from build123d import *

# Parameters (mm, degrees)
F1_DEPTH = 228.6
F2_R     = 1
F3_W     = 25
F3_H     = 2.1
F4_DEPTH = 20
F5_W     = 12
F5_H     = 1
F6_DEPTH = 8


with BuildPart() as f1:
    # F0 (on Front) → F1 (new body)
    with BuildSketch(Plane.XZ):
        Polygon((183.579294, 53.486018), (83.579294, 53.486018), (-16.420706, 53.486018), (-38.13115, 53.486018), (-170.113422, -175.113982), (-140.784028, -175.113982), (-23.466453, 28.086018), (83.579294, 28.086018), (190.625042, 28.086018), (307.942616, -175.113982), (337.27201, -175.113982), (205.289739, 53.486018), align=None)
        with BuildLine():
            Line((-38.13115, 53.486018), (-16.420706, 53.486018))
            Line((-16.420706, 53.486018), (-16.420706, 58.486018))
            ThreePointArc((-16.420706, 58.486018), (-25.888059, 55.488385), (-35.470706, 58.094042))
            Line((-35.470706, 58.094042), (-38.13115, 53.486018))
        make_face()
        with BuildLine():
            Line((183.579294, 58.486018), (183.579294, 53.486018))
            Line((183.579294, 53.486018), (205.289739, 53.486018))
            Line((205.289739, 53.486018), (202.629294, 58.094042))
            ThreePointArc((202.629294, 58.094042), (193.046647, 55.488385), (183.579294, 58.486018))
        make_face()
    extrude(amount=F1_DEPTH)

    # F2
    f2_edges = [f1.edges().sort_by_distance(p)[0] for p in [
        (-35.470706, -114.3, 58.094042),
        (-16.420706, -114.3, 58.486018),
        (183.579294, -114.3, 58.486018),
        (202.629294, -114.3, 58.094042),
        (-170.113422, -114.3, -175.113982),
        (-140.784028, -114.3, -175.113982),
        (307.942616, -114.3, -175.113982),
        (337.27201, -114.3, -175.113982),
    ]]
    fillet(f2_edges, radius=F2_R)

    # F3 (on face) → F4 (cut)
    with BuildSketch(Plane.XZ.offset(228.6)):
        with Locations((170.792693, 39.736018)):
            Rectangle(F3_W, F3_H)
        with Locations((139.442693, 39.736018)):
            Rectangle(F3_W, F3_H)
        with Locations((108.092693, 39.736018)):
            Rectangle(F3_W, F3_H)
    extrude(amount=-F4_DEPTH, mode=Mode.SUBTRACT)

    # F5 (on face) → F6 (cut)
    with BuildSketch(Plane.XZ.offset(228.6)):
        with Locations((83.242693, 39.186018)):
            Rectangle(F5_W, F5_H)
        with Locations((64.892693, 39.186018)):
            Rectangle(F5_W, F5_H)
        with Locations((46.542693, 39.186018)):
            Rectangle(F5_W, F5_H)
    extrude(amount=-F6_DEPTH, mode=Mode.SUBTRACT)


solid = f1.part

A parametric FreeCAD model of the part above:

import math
import FreeCAD as App
import Part
import Sketcher
from FreeCAD import Vector
Q = App.Units.Quantity


def edges_at(feature, points):
    """Names of the edges that pass closest to the given points."""
    edges = feature.Shape.Edges
    near = lambda p: min(range(len(edges)), key=lambda i: edges[i].distToShape(Part.Vertex(*p))[0])
    return sorted({f"Edge{near(p) + 1}" for p in points})

doc = App.newDocument("Part")
params = doc.addObject("Spreadsheet::Sheet", "Params")
for row, (alias, value) in enumerate([
    ("sketch1_width", "200 mm"),
    ("sketch1_height", "5 mm"),
    ("pad1_length", "228.6 mm"),
    ("fillet_radius", "1 mm"),
    ("sketch2_width", "25 mm"),
    ("sketch2_height", "2.1 mm"),
    ("pocket1_length", "20 mm"),
    ("sketch3_width", "12 mm"),
    ("sketch3_height", "1 mm"),
    ("pocket2_length", "8 mm"),
], start=1):
    params.set(f"A{row}", alias)
    params.set(f"B{row}", "=" + value)
    params.setAlias(f"B{row}", alias)

body = doc.addObject("PartDesign::Body", "Body")

sketch1 = doc.addObject("Sketcher::SketchObject", "Sketch")
body.addObject(sketch1)
sketch1.AttachmentSupport = (doc.XZ_Plane, [""])
sketch1.MapMode = "FlatFace"
sketch1.addGeometry(Part.LineSegment(Vector(-38.13115, 53.486018, 0), Vector(-170.113422, -175.113982, 0)), False)
sketch1.addGeometry(Part.LineSegment(Vector(-170.113422, -175.113982, 0), Vector(-140.784028, -175.113982, 0)), False)
sketch1.addGeometry(Part.LineSegment(Vector(-140.784028, -175.113982, 0), Vector(-23.466453, 28.086018, 0)), False)
sketch1.addGeometry(Part.LineSegment(Vector(-23.466453, 28.086018, 0), Vector(190.625042, 28.086018, 0)), False)
sketch1.addGeometry(Part.LineSegment(Vector(190.625042, 28.086018, 0), Vector(307.942616, -175.113982, 0)), False)
sketch1.addGeometry(Part.LineSegment(Vector(307.942616, -175.113982, 0), Vector(337.27201, -175.113982, 0)), False)
sketch1.addGeometry(Part.LineSegment(Vector(337.27201, -175.113982, 0), Vector(205.289739, 53.486018, 0)), False)
sketch1.addGeometry(Part.LineSegment(Vector(205.289739, 53.486018, 0), Vector(202.629294, 58.094042, 0)), False)
sketch1.addGeometry(Part.ArcOfCircle(Part.Circle(Vector(193.408629, 73.080699, 0), Vector(0, 0, 1), 17.596038), math.radians(-123.959773), math.radians(-58.397749)), False)
sketch1.addGeometry(Part.LineSegment(Vector(183.579294, 58.486018, 0), Vector(183.579294, 53.486018, 0)), False)
sketch1.addGeometry(Part.LineSegment(Vector(183.579294, 53.486018, 0), Vector(-16.420706, 53.486018, 0)), False)
sketch1.addGeometry(Part.LineSegment(Vector(-16.420706, 53.486018, 0), Vector(-16.420706, 58.486018, 0)), False)
sketch1.addGeometry(Part.ArcOfCircle(Part.Circle(Vector(-26.250041, 73.080699, 0), Vector(0, 0, 1), 17.596038), math.radians(-121.602251), math.radians(-56.040227)), False)
sketch1.addGeometry(Part.LineSegment(Vector(-35.470706, 58.094042, 0), Vector(-38.13115, 53.486018, 0)), False)
sketch1.addConstraint(Sketcher.Constraint("Coincident", 0, 2, 1, 1))
sketch1.addConstraint(Sketcher.Constraint("Coincident", 1, 2, 2, 1))
sketch1.addConstraint(Sketcher.Constraint("Coincident", 2, 2, 3, 1))
sketch1.addConstraint(Sketcher.Constraint("Coincident", 3, 2, 4, 1))
sketch1.addConstraint(Sketcher.Constraint("Coincident", 4, 2, 5, 1))
sketch1.addConstraint(Sketcher.Constraint("Coincident", 5, 2, 6, 1))
sketch1.addConstraint(Sketcher.Constraint("Coincident", 6, 2, 7, 1))
sketch1.addConstraint(Sketcher.Constraint("Coincident", 7, 2, 8, 2))
sketch1.addConstraint(Sketcher.Constraint("Coincident", 8, 1, 9, 1))
sketch1.addConstraint(Sketcher.Constraint("Coincident", 9, 2, 10, 1))
sketch1.addConstraint(Sketcher.Constraint("Coincident", 10, 2, 11, 1))
sketch1.addConstraint(Sketcher.Constraint("Coincident", 11, 2, 12, 2))
sketch1.addConstraint(Sketcher.Constraint("Coincident", 12, 1, 13, 1))
sketch1.addConstraint(Sketcher.Constraint("Coincident", 13, 2, 0, 1))
sketch1.addConstraint(Sketcher.Constraint("Horizontal", 1))
sketch1.addConstraint(Sketcher.Constraint("Horizontal", 3))
sketch1.addConstraint(Sketcher.Constraint("Horizontal", 5))
sketch1.addConstraint(Sketcher.Constraint("Vertical", 9))
sketch1.addConstraint(Sketcher.Constraint("Horizontal", 10))
sketch1.addConstraint(Sketcher.Constraint("Vertical", 11))
sketch1.addConstraint(Sketcher.Constraint("Equal", 8, 12))
sketch1.addConstraint(Sketcher.Constraint("Parallel", 0, 2))
sketch1.addConstraint(Sketcher.Constraint("Parallel", 4, 6))
sketch1.addConstraint(Sketcher.Constraint("Parallel", 6, 7))
sketch1.addConstraint(Sketcher.Constraint("Parallel", 2, 13))
sketch1.addConstraint(Sketcher.Constraint("Horizontal", 8, 3, 12, 3))
sketch1.addConstraint(Sketcher.Constraint("Horizontal", 1, 2, 4, 2))
sketch1.addConstraint(Sketcher.Constraint("Horizontal", 6, 2, 9, 2))
sketch1.addConstraint(Sketcher.Constraint("Horizontal", 8, 1, 11, 2))
sketch1.addConstraint(Sketcher.Constraint("Horizontal", 7, 2, 12, 1))
sketch1.addConstraint(Sketcher.Constraint("Horizontal", 10, 2, 13, 2))
sketch1.addConstraint(Sketcher.Constraint("Equal", 1, 5))
sketch1.addConstraint(Sketcher.Constraint("Equal", 2, 4))
sketch1.addConstraint(Sketcher.Constraint("DistanceX", 10, 2, 10, 1, 200.0))
sketch1.addConstraint(Sketcher.Constraint("DistanceY", 9, 2, 9, 1, 5.0))
sketch1.addConstraint(Sketcher.Constraint("Angle", 0, Q("-120 deg")))
sketch1.addConstraint(Sketcher.Constraint("DistanceY", 1, 2, 2, 2, 203.2))
sketch1.addConstraint(Sketcher.Constraint("DistanceY", 3, 2, 6, 2, 25.4))
sketch1.addConstraint(Sketcher.Constraint("Radius", 8, 17.596038))
sketch1.addConstraint(Sketcher.Constraint("DistanceX", 8, 1, 7, 2, 19.05))
sketch1.addConstraint(Sketcher.Constraint("DistanceY", -1, 1, 8, 3, 73.080699))
sketch1.addConstraint(Sketcher.Constraint("Distance", 7, 5.320888))
sketch1.addConstraint(Sketcher.Constraint("DistanceX", 1, 1, 1, 2, 29.329394))
sketch1.addConstraint(Sketcher.Constraint("DistanceX", -1, 1, 8, 3, 193.408629))
sketch1.setExpression("Constraints[33]", "Params.sketch1_width")
sketch1.setExpression("Constraints[34]", "Params.sketch1_height")
pad1 = doc.addObject("PartDesign::Pad", "Pad")
body.addObject(pad1)
pad1.Profile = sketch1
pad1.setExpression("Length", "Params.pad1_length")
doc.recompute()

fillet = doc.addObject("PartDesign::Fillet", "Fillet")
body.addObject(fillet)
fillet.Base = (pad1, edges_at(pad1, [
    (-35.471, -114.3, 58.094),
    (-16.421, -114.3, 58.486),
    (183.579, -114.3, 58.486),
    (202.629, -114.3, 58.094),
    (-170.113, -114.3, -175.114),
    (-140.784, -114.3, -175.114),
    (307.943, -114.3, -175.114),
    (337.272, -114.3, -175.114),
]))
fillet.setExpression("Radius", "Params.fillet_radius")

sketch2 = doc.addObject("Sketcher::SketchObject", "Sketch001")
body.addObject(sketch2)
sketch2.AttachmentSupport = (doc.XZ_Plane, [""])
sketch2.MapMode = "FlatFace"
sketch2.AttachmentOffset = App.Placement(Vector(0, 0, 228.6), App.Rotation())
sketch2.addGeometry(Part.LineSegment(Vector(158.292693, 40.786018, 0), Vector(158.292693, 38.686018, 0)), False)
sketch2.addGeometry(Part.LineSegment(Vector(158.292693, 38.686018, 0), Vector(183.292693, 38.686018, 0)), False)
sketch2.addGeometry(Part.LineSegment(Vector(183.292693, 38.686018, 0), Vector(183.292693, 40.786018, 0)), False)
sketch2.addGeometry(Part.LineSegment(Vector(183.292693, 40.786018, 0), Vector(158.292693, 40.786018, 0)), False)
sketch2.addGeometry(Part.LineSegment(Vector(126.942693, 40.786018, 0), Vector(126.942693, 38.686018, 0)), False)
sketch2.addGeometry(Part.LineSegment(Vector(126.942693, 38.686018, 0), Vector(151.942693, 38.686018, 0)), False)
sketch2.addGeometry(Part.LineSegment(Vector(151.942693, 38.686018, 0), Vector(151.942693, 40.786018, 0)), False)
sketch2.addGeometry(Part.LineSegment(Vector(151.942693, 40.786018, 0), Vector(126.942693, 40.786018, 0)), False)
sketch2.addGeometry(Part.LineSegment(Vector(95.592693, 40.786018, 0), Vector(95.592693, 38.686018, 0)), False)
sketch2.addGeometry(Part.LineSegment(Vector(95.592693, 38.686018, 0), Vector(120.592693, 38.686018, 0)), False)
sketch2.addGeometry(Part.LineSegment(Vector(120.592693, 38.686018, 0), Vector(120.592693, 40.786018, 0)), False)
sketch2.addGeometry(Part.LineSegment(Vector(120.592693, 40.786018, 0), Vector(95.592693, 40.786018, 0)), False)
sketch2.addConstraint(Sketcher.Constraint("Coincident", 0, 2, 1, 1))
sketch2.addConstraint(Sketcher.Constraint("Coincident", 1, 2, 2, 1))
sketch2.addConstraint(Sketcher.Constraint("Coincident", 2, 2, 3, 1))
sketch2.addConstraint(Sketcher.Constraint("Coincident", 3, 2, 0, 1))
sketch2.addConstraint(Sketcher.Constraint("Coincident", 4, 2, 5, 1))
sketch2.addConstraint(Sketcher.Constraint("Coincident", 5, 2, 6, 1))
sketch2.addConstraint(Sketcher.Constraint("Coincident", 6, 2, 7, 1))
sketch2.addConstraint(Sketcher.Constraint("Coincident", 7, 2, 4, 1))
sketch2.addConstraint(Sketcher.Constraint("Coincident", 8, 2, 9, 1))
sketch2.addConstraint(Sketcher.Constraint("Coincident", 9, 2, 10, 1))
sketch2.addConstraint(Sketcher.Constraint("Coincident", 10, 2, 11, 1))
sketch2.addConstraint(Sketcher.Constraint("Coincident", 11, 2, 8, 1))
sketch2.addConstraint(Sketcher.Constraint("Vertical", 0))
sketch2.addConstraint(Sketcher.Constraint("Horizontal", 1))
sketch2.addConstraint(Sketcher.Constraint("Vertical", 2))
sketch2.addConstraint(Sketcher.Constraint("Horizontal", 3))
sketch2.addConstraint(Sketcher.Constraint("Vertical", 4))
sketch2.addConstraint(Sketcher.Constraint("Horizontal", 5))
sketch2.addConstraint(Sketcher.Constraint("Vertical", 6))
sketch2.addConstraint(Sketcher.Constraint("Horizontal", 7))
sketch2.addConstraint(Sketcher.Constraint("Vertical", 8))
sketch2.addConstraint(Sketcher.Constraint("Horizontal", 9))
sketch2.addConstraint(Sketcher.Constraint("Vertical", 10))
sketch2.addConstraint(Sketcher.Constraint("Horizontal", 11))
sketch2.addConstraint(Sketcher.Constraint("Horizontal", 1, 2, 4, 2))
sketch2.addConstraint(Sketcher.Constraint("Horizontal", 3, 2, 6, 2))
sketch2.addConstraint(Sketcher.Constraint("Horizontal", 5, 2, 8, 2))
sketch2.addConstraint(Sketcher.Constraint("Horizontal", 7, 2, 10, 2))
sketch2.addConstraint(Sketcher.Constraint("Equal", 3, 5))
sketch2.addConstraint(Sketcher.Constraint("Equal", 7, 9))
sketch2.addConstraint(Sketcher.Constraint("DistanceX", 1, 1, 1, 2, 25.0))
sketch2.addConstraint(Sketcher.Constraint("DistanceY", 0, 2, 0, 1, 2.1))
sketch2.addConstraint(Sketcher.Constraint("DistanceX", 8, 2, 0, 2, 62.7))
sketch2.addConstraint(Sketcher.Constraint("DistanceX", 4, 2, 0, 2, 31.35))
sketch2.addConstraint(Sketcher.Constraint("DistanceX", -1, 1, 0, 2, 158.292693))
sketch2.addConstraint(Sketcher.Constraint("DistanceY", -1, 1, 0, 2, 38.686018))
sketch2.setExpression("Constraints[30]", "Params.sketch2_width")
sketch2.setExpression("Constraints[31]", "Params.sketch2_height")
pocket1 = doc.addObject("PartDesign::Pocket", "Pocket")
body.addObject(pocket1)
pocket1.Profile = sketch2
pocket1.setExpression("Length", "Params.pocket1_length")

sketch3 = doc.addObject("Sketcher::SketchObject", "Sketch002")
body.addObject(sketch3)
sketch3.AttachmentSupport = (doc.XZ_Plane, [""])
sketch3.MapMode = "FlatFace"
sketch3.AttachmentOffset = App.Placement(Vector(0, 0, 228.6), App.Rotation())
sketch3.addGeometry(Part.LineSegment(Vector(77.242693, 39.686018, 0), Vector(77.242693, 38.686018, 0)), False)
sketch3.addGeometry(Part.LineSegment(Vector(77.242693, 38.686018, 0), Vector(89.242693, 38.686018, 0)), False)
sketch3.addGeometry(Part.LineSegment(Vector(89.242693, 38.686018, 0), Vector(89.242693, 39.686018, 0)), False)
sketch3.addGeometry(Part.LineSegment(Vector(89.242693, 39.686018, 0), Vector(77.242693, 39.686018, 0)), False)
sketch3.addGeometry(Part.LineSegment(Vector(58.892693, 39.686018, 0), Vector(58.892693, 38.686018, 0)), False)
sketch3.addGeometry(Part.LineSegment(Vector(58.892693, 38.686018, 0), Vector(70.892693, 38.686018, 0)), False)
sketch3.addGeometry(Part.LineSegment(Vector(70.892693, 38.686018, 0), Vector(70.892693, 39.686018, 0)), False)
sketch3.addGeometry(Part.LineSegment(Vector(70.892693, 39.686018, 0), Vector(58.892693, 39.686018, 0)), False)
sketch3.addGeometry(Part.LineSegment(Vector(40.542693, 39.686018, 0), Vector(40.542693, 38.686018, 0)), False)
sketch3.addGeometry(Part.LineSegment(Vector(40.542693, 38.686018, 0), Vector(52.542693, 38.686018, 0)), False)
sketch3.addGeometry(Part.LineSegment(Vector(52.542693, 38.686018, 0), Vector(52.542693, 39.686018, 0)), False)
sketch3.addGeometry(Part.LineSegment(Vector(52.542693, 39.686018, 0), Vector(40.542693, 39.686018, 0)), False)
sketch3.addConstraint(Sketcher.Constraint("Coincident", 0, 2, 1, 1))
sketch3.addConstraint(Sketcher.Constraint("Coincident", 1, 2, 2, 1))
sketch3.addConstraint(Sketcher.Constraint("Coincident", 2, 2, 3, 1))
sketch3.addConstraint(Sketcher.Constraint("Coincident", 3, 2, 0, 1))
sketch3.addConstraint(Sketcher.Constraint("Coincident", 4, 2, 5, 1))
sketch3.addConstraint(Sketcher.Constraint("Coincident", 5, 2, 6, 1))
sketch3.addConstraint(Sketcher.Constraint("Coincident", 6, 2, 7, 1))
sketch3.addConstraint(Sketcher.Constraint("Coincident", 7, 2, 4, 1))
sketch3.addConstraint(Sketcher.Constraint("Coincident", 8, 2, 9, 1))
sketch3.addConstraint(Sketcher.Constraint("Coincident", 9, 2, 10, 1))
sketch3.addConstraint(Sketcher.Constraint("Coincident", 10, 2, 11, 1))
sketch3.addConstraint(Sketcher.Constraint("Coincident", 11, 2, 8, 1))
sketch3.addConstraint(Sketcher.Constraint("Vertical", 0))
sketch3.addConstraint(Sketcher.Constraint("Horizontal", 1))
sketch3.addConstraint(Sketcher.Constraint("Vertical", 2))
sketch3.addConstraint(Sketcher.Constraint("Horizontal", 3))
sketch3.addConstraint(Sketcher.Constraint("Vertical", 4))
sketch3.addConstraint(Sketcher.Constraint("Horizontal", 5))
sketch3.addConstraint(Sketcher.Constraint("Vertical", 6))
sketch3.addConstraint(Sketcher.Constraint("Horizontal", 7))
sketch3.addConstraint(Sketcher.Constraint("Vertical", 8))
sketch3.addConstraint(Sketcher.Constraint("Horizontal", 9))
sketch3.addConstraint(Sketcher.Constraint("Vertical", 10))
sketch3.addConstraint(Sketcher.Constraint("Horizontal", 11))
sketch3.addConstraint(Sketcher.Constraint("Horizontal", 1, 2, 4, 2))
sketch3.addConstraint(Sketcher.Constraint("Horizontal", 3, 2, 6, 2))
sketch3.addConstraint(Sketcher.Constraint("Horizontal", 5, 2, 8, 2))
sketch3.addConstraint(Sketcher.Constraint("Horizontal", 7, 2, 10, 2))
sketch3.addConstraint(Sketcher.Constraint("Equal", 3, 5))
sketch3.addConstraint(Sketcher.Constraint("Equal", 7, 9))
sketch3.addConstraint(Sketcher.Constraint("DistanceX", 1, 1, 1, 2, 12.0))
sketch3.addConstraint(Sketcher.Constraint("DistanceY", 0, 2, 0, 1, 1.0))
sketch3.addConstraint(Sketcher.Constraint("DistanceX", 8, 2, 0, 2, 36.7))
sketch3.addConstraint(Sketcher.Constraint("DistanceX", 4, 2, 0, 2, 18.35))
sketch3.addConstraint(Sketcher.Constraint("DistanceX", -1, 1, 0, 2, 77.242693))
sketch3.addConstraint(Sketcher.Constraint("DistanceY", -1, 1, 0, 2, 38.686018))
sketch3.setExpression("Constraints[30]", "Params.sketch3_width")
sketch3.setExpression("Constraints[31]", "Params.sketch3_height")
pocket2 = doc.addObject("PartDesign::Pocket", "Pocket001")
body.addObject(pocket2)
pocket2.Profile = sketch3
pocket2.setExpression("Length", "Params.pocket2_length")

doc.recompute()
